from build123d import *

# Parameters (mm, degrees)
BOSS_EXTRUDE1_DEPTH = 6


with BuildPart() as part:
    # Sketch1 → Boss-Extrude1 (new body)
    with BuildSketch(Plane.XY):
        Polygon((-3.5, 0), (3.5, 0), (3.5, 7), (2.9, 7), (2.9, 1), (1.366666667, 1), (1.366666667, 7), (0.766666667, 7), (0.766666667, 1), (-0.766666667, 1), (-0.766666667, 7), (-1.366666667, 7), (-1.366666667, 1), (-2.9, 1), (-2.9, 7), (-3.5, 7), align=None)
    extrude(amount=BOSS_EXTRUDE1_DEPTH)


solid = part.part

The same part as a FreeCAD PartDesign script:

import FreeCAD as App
import Part
import Sketcher

V = App.Vector

doc = App.newDocument("Part")
body = doc.addObject("PartDesign::Body", "Body")

# Sketch on XY plane
sketch1 = body.newObject("Sketcher::SketchObject", "Sketch")
sketch1.AttachmentSupport = (doc.getObject("XY_Plane"), [""])
sketch1.MapMode = "FlatFace"
sketch1.addGeometry([
    Part.LineSegment(V(-3.5, 0, 0), V(3.5, 0, 0)),  # 0
    Part.LineSegment(V(3.5, 0, 0), V(3.5, 7, 0)),  # 1
    Part.LineSegment(V(3.5, 7, 0), V(2.9, 7, 0)),  # 2
    Part.LineSegment(V(2.9, 7, 0), V(2.9, 1, 0)),  # 3
    Part.LineSegment(V(2.9, 1, 0), V(1.4, 1, 0)),  # 4
    Part.LineSegment(V(1.4, 1, 0), V(1.4, 7, 0)),  # 5
    Part.LineSegment(V(1.4, 7, 0), V(0.8, 7, 0)),  # 6
    Part.LineSegment(V(0.8, 7, 0), V(0.8, 1, 0)),  # 7
    Part.LineSegment(V(0.8, 1, 0), V(-0.8, 1, 0)),  # 8
    Part.LineSegment(V(-0.8, 1, 0), V(-0.8, 7, 0)),  # 9
    Part.LineSegment(V(-0.8, 7, 0), V(-1.4, 7, 0)),  # 10
    Part.LineSegment(V(-1.4, 7, 0), V(-1.4, 1, 0)),  # 11
    Part.LineSegment(V(-1.4, 1, 0), V(-2.9, 1, 0)),  # 12
    Part.LineSegment(V(-2.9, 1, 0), V(-2.9, 7, 0)),  # 13
    Part.LineSegment(V(-2.9, 7, 0), V(-3.5, 7, 0)),  # 14
    Part.LineSegment(V(-3.5, 7, 0), V(-3.5, 0, 0)),  # 15
], False)
sketch1.addConstraint([
    Sketcher.Constraint("Coincident", 0, 2, 1, 1),
    Sketcher.Constraint("Coincident", 1, 2, 2, 1),
    Sketcher.Constraint("Coincident", 2, 2, 3, 1),
    Sketcher.Constraint("Coincident", 3, 2, 4, 1),
    Sketcher.Constraint("Coincident", 4, 2, 5, 1),
    Sketcher.Constraint("Coincident", 5, 2, 6, 1),
    Sketcher.Constraint("Coincident", 6, 2, 7, 1),
    Sketcher.Constraint("Coincident", 7, 2, 8, 1),
    Sketcher.Constraint("Coincident", 8, 2, 9, 1),
    Sketcher.Constraint("Coincident", 9, 2, 10, 1),
    Sketcher.Constraint("Coincident", 10, 2, 11, 1),
    Sketcher.Constraint("Coincident", 11, 2, 12, 1),
    Sketcher.Constraint("Coincident", 12, 2, 13, 1),
    Sketcher.Constraint("Coincident", 13, 2, 14, 1),
    Sketcher.Constraint("Coincident", 14, 2, 15, 1),
    Sketcher.Constraint("Coincident", 15, 2, 0, 1),
    Sketcher.Constraint("Horizontal", 0),
    Sketcher.Constraint("Vertical", 1),
    Sketcher.Constraint("Horizontal", 2),
    Sketcher.Constraint("Vertical", 3),
    Sketcher.Constraint("Horizontal", 4),
    Sketcher.Constraint("Vertical", 5),
    Sketcher.Constraint("Horizontal", 6),
    Sketcher.Constraint("Vertical", 7),
    Sketcher.Constraint("Horizontal", 8),
    Sketcher.Constraint("Vertical", 9),
    Sketcher.Constraint("Horizontal", 10),
    Sketcher.Constraint("Vertical", 11),
    Sketcher.Constraint("Horizontal", 12),
    Sketcher.Constraint("Vertical", 13),
    Sketcher.Constraint("Horizontal", 14),
    Sketcher.Constraint("Vertical", 15),
    Sketcher.Constraint("Symmetric", 0, 2, 15, 2, -1, 1),
    Sketcher.Constraint("Symmetric", 6, 2, 9, 2, -2),
    Sketcher.Constraint("Symmetric", 4, 2, 11, 2, -2),
    Sketcher.Constraint("Symmetric", 2, 2, 13, 2, -2),
    Sketcher.Constraint("Horizontal", 2, 2, 5, 2),
    Sketcher.Constraint("Horizontal", 4, 2, 7, 2),
    Sketcher.Constraint("Equal", 2, 6),
    Sketcher.Constraint("Equal", 4, 8),
    Sketcher.Constraint("Equal", 0, 1),
    Sketcher.Constraint("DistanceX", 0, 1, 0, 2, 7.0),
    Sketcher.Constraint("DistanceY", 3, 2, 3, 1, 6.0),
    Sketcher.Constraint("DistanceX", 2, 2, 2, 1, 0.6),
])
pad1 = body.newObject("PartDesign::Pad", "Pad")
pad1.Profile = sketch1
pad1.Length = 6

doc.recompute()
